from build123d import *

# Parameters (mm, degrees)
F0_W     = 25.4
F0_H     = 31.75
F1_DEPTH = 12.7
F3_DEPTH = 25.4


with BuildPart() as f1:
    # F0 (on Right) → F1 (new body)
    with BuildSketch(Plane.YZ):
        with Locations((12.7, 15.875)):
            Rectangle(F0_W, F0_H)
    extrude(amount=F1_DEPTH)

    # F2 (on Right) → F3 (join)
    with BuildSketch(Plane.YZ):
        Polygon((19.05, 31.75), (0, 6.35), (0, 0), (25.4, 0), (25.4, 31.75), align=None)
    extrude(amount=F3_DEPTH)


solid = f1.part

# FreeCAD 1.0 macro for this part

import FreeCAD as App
import Part
import Sketcher
Q = App.Units.Quantity


def add_polygon(sketch, points):
    """Adds a closed chain of lines whose ends are joined by coincident constraints."""
    first, n = sketch.GeometryCount, len(points)
    for a, b in zip(points, points[1:] + points[:1]):
        sketch.addGeometry(Part.LineSegment(App.Vector(*a, 0), App.Vector(*b, 0)), False)
    for i in range(n):
        sketch.addConstraint(Sketcher.Constraint("Coincident", first + i, 2, first + (i + 1) % n, 1))

doc = App.newDocument("Part")
body = doc.addObject("PartDesign::Body", "Body")

# Sketch on YZ plane
sketch1 = body.newObject("Sketcher::SketchObject", "Sketch")
sketch1.AttachmentSupport = (doc.getObject("YZ_Plane"), [""])
sketch1.MapMode = "FlatFace"
add_polygon(sketch1, [(0, 32), (0, 0), (25, 0), (25, 32)])  # lines 0-3
sketch1.addConstraint([
    Sketcher.Constraint("Vertical", 0),
    Sketcher.Constraint("Horizontal", 1),
    Sketcher.Constraint("Vertical", 2),
    Sketcher.Constraint("Horizontal", 3),
    Sketcher.Constraint("Coincident", 0, 2, -1, 1),
    Sketcher.Constraint("DistanceX", 1, 1, 1, 2, Q("1 in")),
    Sketcher.Constraint("DistanceY", 0, 2, 0, 1, Q("1.25 in")),
])
pad1 = body.newObject("PartDesign::Pad", "Pad")
pad1.Profile = sketch1
pad1.Length = Q("0.5 in")

# Sketch on YZ plane
sketch2 = body.newObject("Sketcher::SketchObject", "Sketch001")
sketch2.AttachmentSupport = (doc.getObject("YZ_Plane"), [""])
sketch2.MapMode = "FlatFace"
add_polygon(sketch2, [(19, 32), (0, 6), (0, 0), (25, 0), (25, 32)])  # lines 0-4
sketch2.addConstraint([
    Sketcher.Constraint("Vertical", 1),
    Sketcher.Constraint("Horizontal", 2),
    Sketcher.Constraint("Vertical", 3),
    Sketcher.Constraint("Horizontal", 4),
    Sketcher.Constraint("Coincident", 1, 2, -1, 1),
    Sketcher.Constraint("Equal", 4, 1),
    Sketcher.Constraint("DistanceX", 2, 1, 2, 2, Q("1 in")),
    Sketcher.Constraint("DistanceY", 0, 2, 3, 2, Q("1 in")),
    Sketcher.Constraint("DistanceX", 4, 2, 4, 1, Q("0.25 in")),
])
pad2 = body.newObject("PartDesign::Pad", "Pad001")
pad2.Profile = sketch2
pad2.Length = Q("1 in")

doc.recompute()
